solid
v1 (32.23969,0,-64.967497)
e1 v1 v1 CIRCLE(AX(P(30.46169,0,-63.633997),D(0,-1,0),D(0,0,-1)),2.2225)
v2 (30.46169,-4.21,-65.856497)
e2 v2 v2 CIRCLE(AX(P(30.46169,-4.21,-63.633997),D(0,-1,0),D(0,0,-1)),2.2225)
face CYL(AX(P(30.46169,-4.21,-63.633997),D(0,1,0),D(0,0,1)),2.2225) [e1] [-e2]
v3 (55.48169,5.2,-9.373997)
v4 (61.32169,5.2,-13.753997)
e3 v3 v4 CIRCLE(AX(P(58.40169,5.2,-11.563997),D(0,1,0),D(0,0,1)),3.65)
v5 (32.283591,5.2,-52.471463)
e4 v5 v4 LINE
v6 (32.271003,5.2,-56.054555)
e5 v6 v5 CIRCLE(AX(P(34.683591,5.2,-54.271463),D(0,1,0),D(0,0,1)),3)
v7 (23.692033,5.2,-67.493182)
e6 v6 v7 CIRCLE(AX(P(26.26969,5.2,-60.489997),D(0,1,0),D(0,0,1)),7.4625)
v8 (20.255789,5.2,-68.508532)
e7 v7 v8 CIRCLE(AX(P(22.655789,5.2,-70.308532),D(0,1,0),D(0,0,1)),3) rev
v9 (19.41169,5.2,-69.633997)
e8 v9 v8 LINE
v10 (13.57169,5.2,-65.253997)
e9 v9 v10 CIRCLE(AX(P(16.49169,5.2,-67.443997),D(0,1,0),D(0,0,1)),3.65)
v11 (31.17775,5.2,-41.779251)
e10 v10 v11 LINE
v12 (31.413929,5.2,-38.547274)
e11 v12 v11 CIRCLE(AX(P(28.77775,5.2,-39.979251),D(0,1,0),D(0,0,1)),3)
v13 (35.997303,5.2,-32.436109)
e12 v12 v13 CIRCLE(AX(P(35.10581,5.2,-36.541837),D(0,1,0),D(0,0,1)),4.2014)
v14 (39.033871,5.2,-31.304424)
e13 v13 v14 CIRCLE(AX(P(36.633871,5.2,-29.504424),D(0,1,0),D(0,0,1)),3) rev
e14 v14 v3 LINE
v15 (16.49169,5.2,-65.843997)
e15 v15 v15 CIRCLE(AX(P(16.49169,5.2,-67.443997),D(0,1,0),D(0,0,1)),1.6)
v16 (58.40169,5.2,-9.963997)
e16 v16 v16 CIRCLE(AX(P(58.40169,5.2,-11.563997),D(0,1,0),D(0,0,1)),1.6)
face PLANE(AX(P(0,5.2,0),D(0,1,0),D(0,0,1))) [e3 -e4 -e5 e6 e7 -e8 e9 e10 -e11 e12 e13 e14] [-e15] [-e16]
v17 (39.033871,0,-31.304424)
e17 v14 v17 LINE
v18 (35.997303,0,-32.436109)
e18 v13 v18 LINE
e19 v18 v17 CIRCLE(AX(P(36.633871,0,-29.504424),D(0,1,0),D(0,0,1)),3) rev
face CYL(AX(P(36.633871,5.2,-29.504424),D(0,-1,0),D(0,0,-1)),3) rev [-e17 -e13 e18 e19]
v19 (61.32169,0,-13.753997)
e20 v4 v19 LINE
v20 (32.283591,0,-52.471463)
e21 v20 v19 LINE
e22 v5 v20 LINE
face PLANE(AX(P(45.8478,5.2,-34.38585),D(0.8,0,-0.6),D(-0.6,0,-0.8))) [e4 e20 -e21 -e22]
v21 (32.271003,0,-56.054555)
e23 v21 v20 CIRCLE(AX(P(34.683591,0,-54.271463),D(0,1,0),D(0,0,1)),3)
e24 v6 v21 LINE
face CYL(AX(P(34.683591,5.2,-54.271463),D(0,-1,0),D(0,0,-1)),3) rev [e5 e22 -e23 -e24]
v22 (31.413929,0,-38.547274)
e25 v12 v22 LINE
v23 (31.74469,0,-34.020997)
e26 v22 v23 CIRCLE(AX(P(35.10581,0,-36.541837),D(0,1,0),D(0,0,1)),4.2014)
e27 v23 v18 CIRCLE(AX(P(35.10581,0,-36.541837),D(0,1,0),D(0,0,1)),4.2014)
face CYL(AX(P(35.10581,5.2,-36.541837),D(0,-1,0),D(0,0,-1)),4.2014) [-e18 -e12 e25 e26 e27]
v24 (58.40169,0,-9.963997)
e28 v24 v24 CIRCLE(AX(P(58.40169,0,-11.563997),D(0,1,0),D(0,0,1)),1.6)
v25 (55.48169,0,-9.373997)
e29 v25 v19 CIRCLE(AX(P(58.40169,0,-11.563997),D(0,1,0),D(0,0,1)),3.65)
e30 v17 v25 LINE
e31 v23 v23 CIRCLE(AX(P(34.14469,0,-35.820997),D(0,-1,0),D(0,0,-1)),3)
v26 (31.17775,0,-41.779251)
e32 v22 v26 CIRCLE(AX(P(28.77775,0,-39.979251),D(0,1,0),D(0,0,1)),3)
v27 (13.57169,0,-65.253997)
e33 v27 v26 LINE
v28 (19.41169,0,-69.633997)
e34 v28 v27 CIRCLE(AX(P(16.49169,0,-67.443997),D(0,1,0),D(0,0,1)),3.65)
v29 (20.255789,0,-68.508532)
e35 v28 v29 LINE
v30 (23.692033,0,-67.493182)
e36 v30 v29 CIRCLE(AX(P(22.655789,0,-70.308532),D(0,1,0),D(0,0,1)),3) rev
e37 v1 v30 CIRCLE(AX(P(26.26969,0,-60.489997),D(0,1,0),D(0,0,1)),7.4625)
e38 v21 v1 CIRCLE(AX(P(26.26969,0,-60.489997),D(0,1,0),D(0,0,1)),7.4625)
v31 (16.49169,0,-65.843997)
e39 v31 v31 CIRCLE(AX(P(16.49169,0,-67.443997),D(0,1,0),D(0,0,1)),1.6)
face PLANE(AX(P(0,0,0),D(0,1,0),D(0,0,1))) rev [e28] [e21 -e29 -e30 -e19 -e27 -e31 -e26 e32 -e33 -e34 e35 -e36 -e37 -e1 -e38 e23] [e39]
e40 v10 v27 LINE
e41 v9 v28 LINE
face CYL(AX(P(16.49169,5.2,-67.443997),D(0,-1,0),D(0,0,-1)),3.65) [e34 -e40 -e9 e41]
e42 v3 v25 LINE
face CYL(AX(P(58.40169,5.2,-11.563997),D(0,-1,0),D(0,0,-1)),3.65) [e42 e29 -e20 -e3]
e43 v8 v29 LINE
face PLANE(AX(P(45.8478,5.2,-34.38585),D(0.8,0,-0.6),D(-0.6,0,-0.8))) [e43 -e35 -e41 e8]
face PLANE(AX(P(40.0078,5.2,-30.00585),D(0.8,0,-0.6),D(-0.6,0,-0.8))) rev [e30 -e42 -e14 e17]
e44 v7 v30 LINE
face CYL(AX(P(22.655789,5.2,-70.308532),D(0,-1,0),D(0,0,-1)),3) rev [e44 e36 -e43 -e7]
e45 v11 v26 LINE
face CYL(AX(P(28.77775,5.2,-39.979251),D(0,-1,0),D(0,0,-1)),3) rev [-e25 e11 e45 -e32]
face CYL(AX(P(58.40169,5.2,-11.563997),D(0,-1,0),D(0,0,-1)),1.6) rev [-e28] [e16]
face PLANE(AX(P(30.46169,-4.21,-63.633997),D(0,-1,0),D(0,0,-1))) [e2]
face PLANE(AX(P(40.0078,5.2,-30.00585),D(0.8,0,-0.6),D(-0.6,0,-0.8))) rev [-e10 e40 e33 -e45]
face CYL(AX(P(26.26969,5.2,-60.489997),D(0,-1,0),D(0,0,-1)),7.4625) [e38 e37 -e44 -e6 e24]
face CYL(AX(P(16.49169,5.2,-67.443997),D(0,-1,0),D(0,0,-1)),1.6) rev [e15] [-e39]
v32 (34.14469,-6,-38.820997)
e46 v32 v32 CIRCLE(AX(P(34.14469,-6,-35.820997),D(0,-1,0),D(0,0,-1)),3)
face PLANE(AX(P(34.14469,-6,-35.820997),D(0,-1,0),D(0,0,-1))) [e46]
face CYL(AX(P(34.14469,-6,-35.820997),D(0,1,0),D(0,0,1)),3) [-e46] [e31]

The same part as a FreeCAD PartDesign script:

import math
import FreeCAD as App
import Part
import Sketcher
from FreeCAD import Vector
Q = App.Units.Quantity

doc = App.newDocument("Part")
body = doc.addObject("PartDesign::Body", "Body")

sketch1 = body.newObject("Sketcher::SketchObject", "Sketch")
sketch1.AttachmentSupport = (doc.getObject("XZ_Plane"), [""])
sketch1.MapMode = "FlatFace"
sketch1.addGeometry([
    Part.LineSegment(Vector(13.6, -65.3, 0), Vector(31.2, -41.8, 0)),
    Part.ArcOfCircle(Part.Circle(Vector(28.8, -40, 0), Vector(0, 0, 1), 3), math.radians(-37), math.radians(29)),
    Part.ArcOfCircle(Part.Circle(Vector(35.1, -36.5, 0), Vector(0, 0, 1), 4.2), math.radians(78), math.radians(209)),
    Part.ArcOfCircle(Part.Circle(Vector(36.6, -29.5, 0), Vector(0, 0, 1), 3), math.radians(-102), math.radians(-37)),
    Part.LineSegment(Vector(39, -31.3, 0), Vector(55.5, -9.4, 0)),
    Part.ArcOfCircle(Part.Circle(Vector(58.4, -11.6, 0), Vector(0, 0, 1), 3.6), math.radians(-37), math.radians(143)),
    Part.LineSegment(Vector(61.3, -13.8, 0), Vector(32.3, -52.5, 0)),
    Part.ArcOfCircle(Part.Circle(Vector(34.7, -54.3, 0), Vector(0, 0, 1), 3), math.radians(143), math.radians(216)),
    Part.ArcOfCircle(Part.Circle(Vector(26.3, -60.5, 0), Vector(0, 0, 1), 7.5), math.radians(-110), math.radians(36)),
    Part.ArcOfCircle(Part.Circle(Vector(22.7, -70.3, 0), Vector(0, 0, 1), 3), math.radians(70), math.radians(143)),
    Part.LineSegment(Vector(20.3, -68.5, 0), Vector(19.4, -69.6, 0)),
    Part.ArcOfCircle(Part.Circle(Vector(16.5, -67.4, 0), Vector(0, 0, 1), 3.6), math.radians(143), math.radians(323)),
    Part.Circle(Vector(58.4, -11.6, 0), Vector(0, 0, 1), 1.6),
    Part.Circle(Vector(16.5, -67.4, 0), Vector(0, 0, 1), 1.6),
], False)
sketch1.addConstraint([
    Sketcher.Constraint("Tangent", 0, 2, 1, 1),
    Sketcher.Constraint("Tangent", 1, 2, 2, 2),
    Sketcher.Constraint("Tangent", 2, 1, 3, 1),
    Sketcher.Constraint("Tangent", 3, 2, 4, 1),
    Sketcher.Constraint("Tangent", 4, 2, 5, 2),
    Sketcher.Constraint("Tangent", 5, 1, 6, 1),
    Sketcher.Constraint("Tangent", 6, 2, 7, 1),
    Sketcher.Constraint("Tangent", 7, 2, 8, 2),
    Sketcher.Constraint("Tangent", 8, 1, 9, 1),
    Sketcher.Constraint("Tangent", 9, 2, 10, 1),
    Sketcher.Constraint("Tangent", 10, 2, 11, 2),
    Sketcher.Constraint("Tangent", 11, 1, 0, 1),
    Sketcher.Constraint("Coincident", 12, 3, 5, 3),
    Sketcher.Constraint("Coincident", 13, 3, 11, 3),
    Sketcher.Constraint("Equal", 1, 3),
    Sketcher.Constraint("Equal", 3, 7),
    Sketcher.Constraint("Equal", 7, 9),
    Sketcher.Constraint("Equal", 5, 11),
    Sketcher.Constraint("Equal", 12, 13),
    Sketcher.Constraint("Parallel", 0, 4),
    Sketcher.Constraint("Parallel", 4, 6),
    Sketcher.Constraint("Parallel", 6, 10),
    Sketcher.Constraint("Radius", 1, Q("3 mm")),
    Sketcher.Constraint("Diameter", 12, Q("3.2 mm")),
    Sketcher.Constraint("Radius", 5, Q("3.65 mm")),
    Sketcher.Constraint("Radius", 2, Q("4.2014 mm")),
    Sketcher.Constraint("Radius", 8, Q("7.4625 mm")),
    Sketcher.Constraint("DistanceX", 1, 3, 0, 2, Q("2.4 mm")),
    Sketcher.Constraint("DistanceX", 8, 3, 5, 3, Q("32.132 mm")),
    Sketcher.Constraint("DistanceY", 8, 3, 5, 3, Q("48.926 mm")),
    Sketcher.Constraint("DistanceX", 11, 3, 8, 3, Q("9.778 mm")),
    Sketcher.Constraint("DistanceY", 11, 3, 8, 3, Q("6.954 mm")),
    Sketcher.Constraint("DistanceX", -1, 1, 1, 3, Q("28.77775 mm")),
    Sketcher.Constraint("DistanceY", 1, 3, -1, 1, Q("39.979251 mm")),
    Sketcher.Constraint("DistanceX", -1, 1, 2, 3, Q("35.10581 mm")),
    Sketcher.Constraint("DistanceX", -1, 1, 5, 3, Q("58.40169 mm")),
])
pad1 = body.newObject("PartDesign::Pad", "Pad")
pad1.Profile = sketch1
pad1.Length = 5.2
pad1.Reversed = True

sketch2 = body.newObject("Sketcher::SketchObject", "Sketch001")
sketch2.AttachmentSupport = (doc.getObject("XZ_Plane"), [""])
sketch2.MapMode = "FlatFace"
sketch2.addGeometry(Part.Circle(Vector(34.1, -35.8, 0), Vector(0, 0, 1), 3), False)
sketch2.addConstraint([
    Sketcher.Constraint("Diameter", 0, Q("6 mm")),
    Sketcher.Constraint("DistanceX", -1, 1, 0, 3, Q("34.14469 mm")),
    Sketcher.Constraint("DistanceY", 0, 3, -1, 1, Q("35.820997 mm")),
])
pad2 = body.newObject("PartDesign::Pad", "Pad001")
pad2.Profile = sketch2
pad2.Length = 6

sketch3 = body.newObject("Sketcher::SketchObject", "Sketch002")
sketch3.AttachmentSupport = (doc.getObject("XZ_Plane"), [""])
sketch3.MapMode = "FlatFace"
sketch3.addGeometry(Part.Circle(Vector(30.5, -63.6, 0), Vector(0, 0, 1), 2.2), False)
sketch3.addConstraint([
    Sketcher.Constraint("Diameter", 0, Q("4.445 mm")),
    Sketcher.Constraint("DistanceX", -1, 1, 0, 3, Q("30.46169 mm")),
    Sketcher.Constraint("DistanceY", 0, 3, -1, 1, Q("63.633997 mm")),
])
pad3 = body.newObject("PartDesign::Pad", "Pad002")
pad3.Profile = sketch3
pad3.Length = 4.21

doc.recompute()
